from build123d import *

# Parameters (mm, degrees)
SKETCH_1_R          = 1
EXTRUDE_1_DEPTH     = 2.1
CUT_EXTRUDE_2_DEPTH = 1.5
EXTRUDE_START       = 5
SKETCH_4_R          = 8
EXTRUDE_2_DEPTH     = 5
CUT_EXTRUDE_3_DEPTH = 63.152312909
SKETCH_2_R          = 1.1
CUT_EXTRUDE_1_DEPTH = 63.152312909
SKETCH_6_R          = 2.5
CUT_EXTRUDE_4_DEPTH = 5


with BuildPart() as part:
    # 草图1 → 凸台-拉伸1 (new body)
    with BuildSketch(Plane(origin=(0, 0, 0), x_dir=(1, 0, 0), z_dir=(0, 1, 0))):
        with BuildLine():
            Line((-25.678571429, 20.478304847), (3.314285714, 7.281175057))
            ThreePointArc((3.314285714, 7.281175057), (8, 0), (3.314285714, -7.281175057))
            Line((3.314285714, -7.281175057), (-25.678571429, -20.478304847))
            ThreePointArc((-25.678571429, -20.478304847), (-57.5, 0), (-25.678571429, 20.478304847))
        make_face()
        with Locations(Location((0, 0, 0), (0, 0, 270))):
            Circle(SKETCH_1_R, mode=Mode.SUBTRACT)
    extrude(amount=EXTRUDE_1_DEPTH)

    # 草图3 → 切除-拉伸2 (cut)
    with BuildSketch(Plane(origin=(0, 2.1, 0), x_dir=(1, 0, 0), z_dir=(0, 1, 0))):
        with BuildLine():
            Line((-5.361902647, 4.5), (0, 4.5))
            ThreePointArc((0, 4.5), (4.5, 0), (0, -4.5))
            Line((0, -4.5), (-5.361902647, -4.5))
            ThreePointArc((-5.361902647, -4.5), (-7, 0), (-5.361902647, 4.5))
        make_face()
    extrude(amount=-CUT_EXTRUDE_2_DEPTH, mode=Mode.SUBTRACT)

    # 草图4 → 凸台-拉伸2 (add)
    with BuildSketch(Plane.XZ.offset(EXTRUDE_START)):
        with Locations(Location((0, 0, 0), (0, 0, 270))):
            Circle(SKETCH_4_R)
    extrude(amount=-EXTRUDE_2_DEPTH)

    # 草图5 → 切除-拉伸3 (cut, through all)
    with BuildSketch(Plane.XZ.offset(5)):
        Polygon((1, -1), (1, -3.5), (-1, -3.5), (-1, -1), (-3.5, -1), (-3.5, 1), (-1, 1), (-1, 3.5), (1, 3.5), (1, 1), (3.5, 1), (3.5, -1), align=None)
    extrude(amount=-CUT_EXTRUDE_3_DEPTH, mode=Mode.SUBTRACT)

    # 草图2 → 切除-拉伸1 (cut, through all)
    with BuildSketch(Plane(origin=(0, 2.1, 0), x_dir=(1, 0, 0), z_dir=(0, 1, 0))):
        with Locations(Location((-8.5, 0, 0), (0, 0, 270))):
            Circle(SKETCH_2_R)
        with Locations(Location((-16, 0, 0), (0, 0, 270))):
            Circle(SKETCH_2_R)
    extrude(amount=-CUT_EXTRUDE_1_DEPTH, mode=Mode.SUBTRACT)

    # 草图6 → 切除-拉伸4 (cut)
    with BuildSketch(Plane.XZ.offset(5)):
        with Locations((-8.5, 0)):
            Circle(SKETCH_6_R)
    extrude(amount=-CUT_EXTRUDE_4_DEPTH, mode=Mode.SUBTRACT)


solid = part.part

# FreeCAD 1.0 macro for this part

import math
import FreeCAD as App
import Part
import Sketcher
from FreeCAD import Vector
Q = App.Units.Quantity

doc = App.newDocument("Part")
body = doc.addObject("PartDesign::Body", "Body")

# Sketch on XZ plane
sketch1 = body.newObject("Sketcher::SketchObject", "Sketch")
sketch1.AttachmentSupport = (doc.getObject("XZ_Plane"), [""])
sketch1.MapMode = "FlatFace"
sketch1.addGeometry([
    Part.LineSegment(Vector(3.314286, -7.281175, 0), Vector(-25.678571, -20.478305, 0)),  # 0
    Part.ArcOfCircle(Part.Circle(Vector(-35, 0, 0), Vector(0, 0, 1), 22.5), math.radians(65.525657), math.radians(294.474343)),  # 1
    Part.LineSegment(Vector(-25.678571, 20.478305, 0), Vector(3.314286, 7.281175, 0)),  # 2
    Part.ArcOfCircle(Part.Circle(Vector(0, 0, 0), Vector(0, 0, 1), 8), math.radians(-65.525657), math.radians(65.525657)),  # 3
    Part.Circle(Vector(0, 0, 0), Vector(0, 0, 1), 1),  # 4
], False)
sketch1.addConstraint([
    Sketcher.Constraint("Tangent", 0, 2, 1, 2),
    Sketcher.Constraint("Tangent", 1, 1, 2, 1),
    Sketcher.Constraint("Tangent", 2, 2, 3, 2),
    Sketcher.Constraint("Tangent", 3, 1, 0, 1),
    Sketcher.Constraint("Coincident", 3, 3, -1, 1),
    Sketcher.Constraint("Coincident", 4, 3, -1, 1),
    Sketcher.Constraint("PointOnObject", 1, 3, -1),
    Sketcher.Constraint("Diameter", 4, Q("2 mm")),
    Sketcher.Constraint("Radius", 3, Q("8 mm")),
    Sketcher.Constraint("Radius", 1, Q("22.5 mm")),
    Sketcher.Constraint("DistanceX", 1, 3, -1, 1, Q("35 mm")),
])
pad1 = body.newObject("PartDesign::Pad", "Pad")
pad1.Profile = sketch1
pad1.Length = 2.1
pad1.Reversed = True

# Sketch on XZ plane
sketch2 = body.newObject("Sketcher::SketchObject", "Sketch001")
sketch2.AttachmentSupport = (doc.getObject("XZ_Plane"), [""])
sketch2.MapMode = "FlatFace"
sketch2.AttachmentOffset = App.Placement(Vector(0, 0, -2.1), App.Rotation())
sketch2.addGeometry([
    Part.LineSegment(Vector(0, -4.5, 0), Vector(-5.361903, -4.5, 0)),
    Part.ArcOfCircle(Part.Circle(Vector(0, 0, 0), Vector(0, 0, 1), 7), math.radians(139.994799), math.radians(220.005201)),
    Part.LineSegment(Vector(-5.361903, 4.5, 0), Vector(0, 4.5, 0)),
    Part.ArcOfCircle(Part.Circle(Vector(0, 0, 0), Vector(0, 0, 1), 4.5), math.radians(-90), math.radians(90)),
], False)
sketch2.addConstraint([
    Sketcher.Constraint("Coincident", 0, 2, 1, 2),
    Sketcher.Constraint("Coincident", 1, 1, 2, 1),
    Sketcher.Constraint("Tangent", 2, 2, 3, 2),
    Sketcher.Constraint("Tangent", 3, 1, 0, 1),
    Sketcher.Constraint("Horizontal", 0),
    Sketcher.Constraint("Horizontal", 2),
    Sketcher.Constraint("Coincident", 1, 3, -1, 1),
    Sketcher.Constraint("Coincident", 3, 3, -1, 1),
    Sketcher.Constraint("Radius", 1, Q("7 mm")),
    Sketcher.Constraint("Radius", 3, Q("4.5 mm")),
])
pocket1 = body.newObject("PartDesign::Pocket", "Pocket")
pocket1.Profile = sketch2
pocket1.Length = 1.5
pocket1.Reversed = True

# Sketch on XZ plane
sketch3 = body.newObject("Sketcher::SketchObject", "Sketch002")
sketch3.AttachmentSupport = (doc.getObject("XZ_Plane"), [""])
sketch3.MapMode = "FlatFace"
sketch3.AttachmentOffset = App.Placement(Vector(0, 0, 5), App.Rotation())
sketch3.addGeometry(Part.Circle(Vector(0, 0, 0), Vector(0, 0, 1), 8), False)
sketch3.addConstraint([
    Sketcher.Constraint("Coincident", 0, 3, -1, 1),
    Sketcher.Constraint("Diameter", 0, Q("16 mm")),
])
pad2 = body.newObject("PartDesign::Pad", "Pad001")
pad2.Profile = sketch3
pad2.Length = 5
pad2.Reversed = True

# Sketch on XZ plane
sketch4 = body.newObject("Sketcher::SketchObject", "Sketch003")
sketch4.AttachmentSupport = (doc.getObject("XZ_Plane"), [""])
sketch4.MapMode = "FlatFace"
sketch4.AttachmentOffset = App.Placement(Vector(0, 0, 5), App.Rotation())
sketch4.addGeometry([
    Part.LineSegment(Vector(1, -3.5, 0), Vector(1, -1, 0)),  # 0
    Part.LineSegment(Vector(1, -1, 0), Vector(3.5, -1, 0)),  # 1
    Part.LineSegment(Vector(3.5, -1, 0), Vector(3.5, 1, 0)),  # 2
    Part.LineSegment(Vector(3.5, 1, 0), Vector(1, 1, 0)),  # 3
    Part.LineSegment(Vector(1, 1, 0), Vector(1, 3.5, 0)),  # 4
    Part.LineSegment(Vector(1, 3.5, 0), Vector(-1, 3.5, 0)),  # 5
    Part.LineSegment(Vector(-1, 3.5, 0), Vector(-1, 1, 0)),  # 6
    Part.LineSegment(Vector(-1, 1, 0), Vector(-3.5, 1, 0)),  # 7
    Part.LineSegment(Vector(-3.5, 1, 0), Vector(-3.5, -1, 0)),  # 8
    Part.LineSegment(Vector(-3.5, -1, 0), Vector(-1, -1, 0)),  # 9
    Part.LineSegment(Vector(-1, -1, 0), Vector(-1, -3.5, 0)),  # 10
    Part.LineSegment(Vector(-1, -3.5, 0), Vector(1, -3.5, 0)),  # 11
], False)
sketch4.addConstraint([
    Sketcher.Constraint("Coincident", 0, 2, 1, 1),
    Sketcher.Constraint("Coincident", 1, 2, 2, 1),
    Sketcher.Constraint("Coincident", 2, 2, 3, 1),
    Sketcher.Constraint("Coincident", 3, 2, 4, 1),
    Sketcher.Constraint("Coincident", 4, 2, 5, 1),
    Sketcher.Constraint("Coincident", 5, 2, 6, 1),
    Sketcher.Constraint("Coincident", 6, 2, 7, 1),
    Sketcher.Constraint("Coincident", 7, 2, 8, 1),
    Sketcher.Constraint("Coincident", 8, 2, 9, 1),
    Sketcher.Constraint("Coincident", 9, 2, 10, 1),
    Sketcher.Constraint("Coincident", 10, 2, 11, 1),
    Sketcher.Constraint("Coincident", 11, 2, 0, 1),
    Sketcher.Constraint("Vertical", 0),
    Sketcher.Constraint("Horizontal", 1),
    Sketcher.Constraint("Vertical", 2),
    Sketcher.Constraint("Horizontal", 3),
    Sketcher.Constraint("Vertical", 4),
    Sketcher.Constraint("Horizontal", 5),
    Sketcher.Constraint("Vertical", 6),
    Sketcher.Constraint("Horizontal", 7),
    Sketcher.Constraint("Vertical", 8),
    Sketcher.Constraint("Horizontal", 9),
    Sketcher.Constraint("Vertical", 10),
    Sketcher.Constraint("Horizontal", 11),
    Sketcher.Constraint("Symmetric", 0, 2, 6, 2, -1, 1),
    Sketcher.Constraint("Symmetric", 2, 2, 8, 2, -1, 1),
    Sketcher.Constraint("Symmetric", 4, 2, 10, 2, -1, 1),
    Sketcher.Constraint("Symmetric", 3, 2, 6, 2, -2),
    Sketcher.Constraint("Equal", 9, 0),
    Sketcher.Constraint("Equal", 11, 2),
    Sketcher.Constraint("DistanceX", 5, 2, 5, 1, Q("2 mm")),
    Sketcher.Constraint("DistanceX", 1, 1, 1, 2, Q("2.5 mm")),
])
pocket2 = body.newObject("PartDesign::Pocket", "Pocket001")
pocket2.Profile = sketch4
pocket2.Type = "ThroughAll"

# Sketch on XZ plane
sketch5 = body.newObject("Sketcher::SketchObject", "Sketch004")
sketch5.AttachmentSupport = (doc.getObject("XZ_Plane"), [""])
sketch5.MapMode = "FlatFace"
sketch5.AttachmentOffset = App.Placement(Vector(0, 0, -2.1), App.Rotation())
sketch5.addGeometry([
    Part.Circle(Vector(-8.5, 0, 0), Vector(0, 0, 1), 1.1),
    Part.Circle(Vector(-16, 0, 0), Vector(0, 0, 1), 1.1),
], False)
sketch5.addConstraint([
    Sketcher.Constraint("Equal", 0, 1),
    Sketcher.Constraint("PointOnObject", 0, 3, -1),
    Sketcher.Constraint("PointOnObject", 1, 3, -1),
    Sketcher.Constraint("Diameter", 0, Q("2.2 mm")),
    Sketcher.Constraint("DistanceX", 1, 3, -1, 1, Q("16 mm")),
    Sketcher.Constraint("DistanceX", 0, 3, -1, 1, Q("8.5 mm")),
])
pocket3 = body.newObject("PartDesign::Pocket", "Pocket002")
pocket3.Profile = sketch5
pocket3.Type = "ThroughAll"
pocket3.Reversed = True

# Sketch on XZ plane
sketch6 = body.newObject("Sketcher::SketchObject", "Sketch005")
sketch6.AttachmentSupport = (doc.getObject("XZ_Plane"), [""])
sketch6.MapMode = "FlatFace"
sketch6.AttachmentOffset = App.Placement(Vector(0, 0, 5), App.Rotation())
sketch6.addGeometry(Part.Circle(Vector(-8.5, 0, 0), Vector(0, 0, 1), 2.5), False)
sketch6.addConstraint([
    Sketcher.Constraint("PointOnObject", 0, 3, -1),
    Sketcher.Constraint("Diameter", 0, Q("5 mm")),
    Sketcher.Constraint("DistanceX", 0, 3, -1, 1, Q("8.5 mm")),
])
pocket4 = body.newObject("PartDesign::Pocket", "Pocket003")
pocket4.Profile = sketch6
pocket4.Length = 5

doc.recompute()
